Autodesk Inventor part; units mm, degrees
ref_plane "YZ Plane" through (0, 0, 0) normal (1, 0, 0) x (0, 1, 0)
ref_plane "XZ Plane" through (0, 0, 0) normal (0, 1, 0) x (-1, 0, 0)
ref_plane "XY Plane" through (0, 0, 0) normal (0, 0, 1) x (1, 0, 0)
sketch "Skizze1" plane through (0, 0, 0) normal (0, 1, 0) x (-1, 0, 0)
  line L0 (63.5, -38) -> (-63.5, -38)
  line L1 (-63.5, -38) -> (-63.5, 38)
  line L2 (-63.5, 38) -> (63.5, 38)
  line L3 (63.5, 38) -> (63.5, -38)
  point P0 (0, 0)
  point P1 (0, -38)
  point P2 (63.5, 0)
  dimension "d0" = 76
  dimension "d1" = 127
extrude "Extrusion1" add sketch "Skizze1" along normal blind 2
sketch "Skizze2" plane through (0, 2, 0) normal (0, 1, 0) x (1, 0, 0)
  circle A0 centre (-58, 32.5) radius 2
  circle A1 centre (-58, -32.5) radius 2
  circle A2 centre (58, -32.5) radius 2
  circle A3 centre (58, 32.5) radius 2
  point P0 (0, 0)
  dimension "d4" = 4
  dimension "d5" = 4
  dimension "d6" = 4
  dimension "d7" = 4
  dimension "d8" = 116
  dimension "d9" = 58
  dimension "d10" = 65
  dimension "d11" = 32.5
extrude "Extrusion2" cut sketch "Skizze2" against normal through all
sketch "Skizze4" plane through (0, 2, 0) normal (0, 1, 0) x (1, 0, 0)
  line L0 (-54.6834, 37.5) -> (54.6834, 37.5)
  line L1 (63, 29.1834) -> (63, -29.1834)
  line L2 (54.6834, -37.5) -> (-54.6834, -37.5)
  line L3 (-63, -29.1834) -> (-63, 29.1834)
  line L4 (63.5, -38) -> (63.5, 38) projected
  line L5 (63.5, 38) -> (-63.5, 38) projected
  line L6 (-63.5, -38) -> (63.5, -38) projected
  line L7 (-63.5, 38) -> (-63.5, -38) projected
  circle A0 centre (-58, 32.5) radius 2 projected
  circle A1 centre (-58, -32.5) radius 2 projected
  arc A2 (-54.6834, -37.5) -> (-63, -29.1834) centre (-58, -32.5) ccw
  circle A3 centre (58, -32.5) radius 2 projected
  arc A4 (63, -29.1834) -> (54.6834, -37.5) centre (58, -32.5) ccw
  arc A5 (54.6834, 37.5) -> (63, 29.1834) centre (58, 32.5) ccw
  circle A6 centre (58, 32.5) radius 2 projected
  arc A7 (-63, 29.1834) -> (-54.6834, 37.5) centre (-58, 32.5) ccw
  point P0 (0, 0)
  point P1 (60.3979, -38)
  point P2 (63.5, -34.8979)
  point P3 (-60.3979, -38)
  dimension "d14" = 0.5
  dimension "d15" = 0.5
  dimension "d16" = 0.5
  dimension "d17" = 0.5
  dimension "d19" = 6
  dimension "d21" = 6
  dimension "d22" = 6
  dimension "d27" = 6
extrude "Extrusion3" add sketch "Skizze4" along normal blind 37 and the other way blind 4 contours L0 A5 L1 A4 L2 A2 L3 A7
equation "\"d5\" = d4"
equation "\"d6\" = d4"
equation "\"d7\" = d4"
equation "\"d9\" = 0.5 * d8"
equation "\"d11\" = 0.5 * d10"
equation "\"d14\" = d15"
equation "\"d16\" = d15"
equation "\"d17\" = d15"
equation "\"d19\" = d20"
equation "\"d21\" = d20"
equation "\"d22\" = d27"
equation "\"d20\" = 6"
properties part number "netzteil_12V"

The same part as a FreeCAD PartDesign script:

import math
import FreeCAD as App
import Part
import Sketcher

V = App.Vector
Q = App.Units.Quantity


def add_polygon(sketch, points):
    """Adds a closed chain of lines whose ends are joined by coincident constraints."""
    first, n = sketch.GeometryCount, len(points)
    for a, b in zip(points, points[1:] + points[:1]):
        sketch.addGeometry(Part.LineSegment(App.Vector(*a, 0), App.Vector(*b, 0)), False)
    for i in range(n):
        sketch.addConstraint(Sketcher.Constraint("Coincident", first + i, 2, first + (i + 1) % n, 1))

doc = App.newDocument("Part")
params = doc.addObject("Spreadsheet::Sheet", "Params")
for row, (alias, value) in enumerate([
    ("sketch1_width", "127 mm"),
    ("sketch1_height", "76 mm"),
    ("pad1_length", "2 mm"),
    ("sketch2_diameter", "4 mm"),
    ("sketch3_radius", "6 mm"),
    ("pad2_length", "37 mm"),
    ("pad2_length2", "4 mm"),
], start=1):
    params.set(f"A{row}", alias)
    params.set(f"B{row}", "=" + value)
    params.setAlias(f"B{row}", alias)

body = doc.addObject("PartDesign::Body", "Body")

sketch1 = body.newObject("Sketcher::SketchObject", "Sketch")
sketch1.AttachmentSupport = (doc.getObject("XZ_Plane"), [""])
sketch1.MapMode = "FlatFace"
add_polygon(sketch1, [(64, -38), (-64, -38), (-64, 38), (64, 38)])
sketch1.addConstraint([
    Sketcher.Constraint("Horizontal", 0),
    Sketcher.Constraint("Vertical", 1),
    Sketcher.Constraint("Horizontal", 2),
    Sketcher.Constraint("Vertical", 3),
    Sketcher.Constraint("Symmetric", 0, 2, 2, 2, -1, 1),
    Sketcher.Constraint("DistanceX", 0, 2, 0, 1, Q("127 mm")),
    Sketcher.Constraint("DistanceY", 1, 1, 1, 2, Q("76 mm")),
])
sketch1.setExpression("Constraints[9]", "Params.sketch1_width")
sketch1.setExpression("Constraints[10]", "Params.sketch1_height")
pad1 = body.newObject("PartDesign::Pad", "Pad")
pad1.Profile = sketch1
pad1.setExpression("Length", "Params.pad1_length")
pad1.Reversed = True

sketch2 = body.newObject("Sketcher::SketchObject", "Sketch001")
sketch2.AttachmentSupport = (doc.getObject("XZ_Plane"), [""])
sketch2.MapMode = "FlatFace"
sketch2.AttachmentOffset = App.Placement(V(0, 0, -2), App.Rotation())
sketch2.addGeometry([
    Part.Circle(V(-58, -32.5, 0), V(0, 0, 1), 2),
    Part.Circle(V(-58, 32.5, 0), V(0, 0, 1), 2),
    Part.Circle(V(58, 32.5, 0), V(0, 0, 1), 2),
    Part.Circle(V(58, -32.5, 0), V(0, 0, 1), 2),
], False)
sketch2.addConstraint([
    Sketcher.Constraint("Equal", 0, 1),
    Sketcher.Constraint("Equal", 1, 2),
    Sketcher.Constraint("Equal", 2, 3),
    Sketcher.Constraint("Symmetric", 0, 3, 2, 3, -1, 1),
    Sketcher.Constraint("Symmetric", 1, 3, 3, 3, -1, 1),
    Sketcher.Constraint("Symmetric", 1, 3, 2, 3, -2),
    Sketcher.Constraint("Diameter", 0, Q("4 mm")),
    Sketcher.Constraint("DistanceX", 0, 3, -1, 1, Q("58 mm")),
    Sketcher.Constraint("DistanceY", 0, 3, 1, 3, Q("65 mm")),
])
sketch2.setExpression("Constraints[6]", "Params.sketch2_diameter")
pocket1 = body.newObject("PartDesign::Pocket", "Pocket")
pocket1.Profile = sketch2
pocket1.Type = "ThroughAll"
pocket1.Reversed = True

sketch3 = body.newObject("Sketcher::SketchObject", "Sketch002")
sketch3.AttachmentSupport = (doc.getObject("XZ_Plane"), [""])
sketch3.MapMode = "FlatFace"
sketch3.AttachmentOffset = App.Placement(V(0, 0, -2), App.Rotation())
sketch3.addGeometry([
    Part.LineSegment(V(55, -38, 0), V(-55, -38, 0)),
    Part.ArcOfCircle(Part.Circle(V(-58, -32, 0), V(0, 0, 1), 6), math.radians(-56), math.radians(146)),
    Part.LineSegment(V(-63, -29, 0), V(-63, 29, 0)),
    Part.ArcOfCircle(Part.Circle(V(-58, 32, 0), V(0, 0, 1), 6), math.radians(-146), math.radians(56)),
    Part.LineSegment(V(-55, 38, 0), V(55, 38, 0)),
    Part.ArcOfCircle(Part.Circle(V(58, 32, 0), V(0, 0, 1), 6), math.radians(124), math.radians(326)),
    Part.LineSegment(V(63, 29, 0), V(63, -29, 0)),
    Part.ArcOfCircle(Part.Circle(V(58, -32, 0), V(0, 0, 1), 6), math.radians(34), math.radians(236)),
], False)
sketch3.addConstraint([
    Sketcher.Constraint("Coincident", 0, 2, 1, 1),
    Sketcher.Constraint("Coincident", 1, 2, 2, 1),
    Sketcher.Constraint("Coincident", 2, 2, 3, 1),
    Sketcher.Constraint("Coincident", 3, 2, 4, 1),
    Sketcher.Constraint("Coincident", 4, 2, 5, 1),
    Sketcher.Constraint("Coincident", 5, 2, 6, 1),
    Sketcher.Constraint("Coincident", 6, 2, 7, 1),
    Sketcher.Constraint("Coincident", 7, 2, 0, 1),
    Sketcher.Constraint("Horizontal", 0),
    Sketcher.Constraint("Vertical", 2),
    Sketcher.Constraint("Horizontal", 4),
    Sketcher.Constraint("Vertical", 6),
    Sketcher.Constraint("Equal", 1, 3),
    Sketcher.Constraint("Equal", 3, 5),
    Sketcher.Constraint("Equal", 5, 7),
    Sketcher.Constraint("Symmetric", 1, 3, 5, 3, -1, 1),
    Sketcher.Constraint("Symmetric", 3, 3, 7, 3, -1, 1),
    Sketcher.Constraint("Symmetric", 3, 3, 5, 3, -2),
    Sketcher.Constraint("Horizontal", 2, 2, 5, 2),
    Sketcher.Constraint("Vertical", 0, 2, 3, 2),
    Sketcher.Constraint("Radius", 1, Q("6 mm")),
    Sketcher.Constraint("DistanceX", 1, 3, -1, 1, Q("58 mm")),
    Sketcher.Constraint("DistanceX", 1, 2, -1, 1, Q("63 mm")),
    Sketcher.Constraint("DistanceY", 1, 3, 3, 3, Q("65 mm")),
    Sketcher.Constraint("DistanceY", 0, 2, 1, 3, Q("5 mm")),
])
sketch3.setExpression("Constraints[20]", "Params.sketch3_radius")
pad2 = body.newObject("PartDesign::Pad", "Pad001")
pad2.Profile = sketch3
pad2.Type = "TwoLengths"
pad2.setExpression("Length", "Params.pad2_length")
pad2.setExpression("Length2", "Params.pad2_length2")
pad2.Reversed = True

doc.recompute()
